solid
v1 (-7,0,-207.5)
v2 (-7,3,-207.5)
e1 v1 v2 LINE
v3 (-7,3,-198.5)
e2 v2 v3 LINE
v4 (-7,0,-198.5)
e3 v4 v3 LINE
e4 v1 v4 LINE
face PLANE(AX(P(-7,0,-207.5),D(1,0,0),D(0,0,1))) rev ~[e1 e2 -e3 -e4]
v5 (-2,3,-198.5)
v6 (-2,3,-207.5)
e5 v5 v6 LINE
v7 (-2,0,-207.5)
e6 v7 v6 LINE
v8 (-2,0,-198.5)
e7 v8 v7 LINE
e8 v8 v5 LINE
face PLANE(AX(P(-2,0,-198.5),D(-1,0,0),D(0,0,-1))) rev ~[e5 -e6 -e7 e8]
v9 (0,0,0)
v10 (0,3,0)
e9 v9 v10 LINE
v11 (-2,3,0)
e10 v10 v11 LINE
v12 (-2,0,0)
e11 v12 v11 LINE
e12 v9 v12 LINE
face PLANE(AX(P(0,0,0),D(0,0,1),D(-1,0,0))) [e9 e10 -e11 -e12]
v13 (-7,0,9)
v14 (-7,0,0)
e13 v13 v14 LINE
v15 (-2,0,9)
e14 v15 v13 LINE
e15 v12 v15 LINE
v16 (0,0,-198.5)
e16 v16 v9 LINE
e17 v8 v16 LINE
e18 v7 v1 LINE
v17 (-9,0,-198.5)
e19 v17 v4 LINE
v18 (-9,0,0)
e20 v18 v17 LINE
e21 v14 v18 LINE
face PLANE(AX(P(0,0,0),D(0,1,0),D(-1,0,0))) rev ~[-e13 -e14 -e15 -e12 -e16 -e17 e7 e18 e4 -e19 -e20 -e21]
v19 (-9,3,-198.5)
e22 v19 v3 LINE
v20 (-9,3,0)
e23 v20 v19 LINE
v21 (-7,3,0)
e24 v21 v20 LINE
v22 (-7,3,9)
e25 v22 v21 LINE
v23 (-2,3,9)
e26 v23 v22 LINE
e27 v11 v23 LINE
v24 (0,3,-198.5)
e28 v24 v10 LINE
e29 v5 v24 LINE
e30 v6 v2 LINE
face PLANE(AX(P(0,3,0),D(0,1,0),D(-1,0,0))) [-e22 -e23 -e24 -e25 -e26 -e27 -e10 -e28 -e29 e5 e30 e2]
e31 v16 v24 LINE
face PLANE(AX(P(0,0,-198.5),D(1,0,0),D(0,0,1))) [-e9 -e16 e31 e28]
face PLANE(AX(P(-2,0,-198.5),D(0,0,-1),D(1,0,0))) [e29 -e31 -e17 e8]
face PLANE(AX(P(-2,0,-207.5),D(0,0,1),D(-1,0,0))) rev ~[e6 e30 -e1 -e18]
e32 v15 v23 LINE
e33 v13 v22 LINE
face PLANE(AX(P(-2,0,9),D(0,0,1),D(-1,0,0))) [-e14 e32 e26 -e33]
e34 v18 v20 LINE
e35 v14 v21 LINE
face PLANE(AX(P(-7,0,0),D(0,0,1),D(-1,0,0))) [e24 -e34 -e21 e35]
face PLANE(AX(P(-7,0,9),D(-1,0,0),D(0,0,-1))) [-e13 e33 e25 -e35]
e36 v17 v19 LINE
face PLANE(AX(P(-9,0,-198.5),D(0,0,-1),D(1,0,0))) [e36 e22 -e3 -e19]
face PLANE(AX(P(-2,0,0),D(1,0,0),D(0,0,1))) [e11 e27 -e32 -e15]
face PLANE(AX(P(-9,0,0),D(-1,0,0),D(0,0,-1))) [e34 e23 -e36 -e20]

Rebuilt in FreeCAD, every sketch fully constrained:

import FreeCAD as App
import Part
import Sketcher
Q = App.Units.Quantity


def add_polygon(sketch, points):
    """Adds a closed chain of lines whose ends are joined by coincident constraints."""
    first, n = sketch.GeometryCount, len(points)
    for a, b in zip(points, points[1:] + points[:1]):
        sketch.addGeometry(Part.LineSegment(App.Vector(*a, 0), App.Vector(*b, 0)), False)
    for i in range(n):
        sketch.addConstraint(Sketcher.Constraint("Coincident", first + i, 2, first + (i + 1) % n, 1))

doc = App.newDocument("Part")
body = doc.addObject("PartDesign::Body", "Body")

sketch1 = doc.addObject("Sketcher::SketchObject", "Sketch")
body.addObject(sketch1)
sketch1.AttachmentSupport = (doc.XZ_Plane, [""])
sketch1.MapMode = "FlatFace"
add_polygon(sketch1, [(-2, 0), (0, 0), (0, -198.5), (-2, -198.5), (-2, -207.5), (-7, -207.5), (-7, -198.5), (-9, -198.5), (-9, 0), (-7, 0), (-7, 9), (-2, 9)])
sketch1.addConstraint([
    Sketcher.Constraint("Horizontal", 0),
    Sketcher.Constraint("Vertical", 1),
    Sketcher.Constraint("Horizontal", 2),
    Sketcher.Constraint("Vertical", 3),
    Sketcher.Constraint("Horizontal", 4),
    Sketcher.Constraint("Vertical", 5),
    Sketcher.Constraint("Horizontal", 6),
    Sketcher.Constraint("Vertical", 7),
    Sketcher.Constraint("Horizontal", 8),
    Sketcher.Constraint("Vertical", 9),
    Sketcher.Constraint("Horizontal", 10),
    Sketcher.Constraint("Vertical", 11),
    Sketcher.Constraint("Coincident", 0, 2, -1, 1),
    Sketcher.Constraint("PointOnObject", 7, 2, -1),
    Sketcher.Constraint("Horizontal", 2, 2, 5, 2),
    Sketcher.Constraint("Vertical", 5, 2, 8, 2),
    Sketcher.Constraint("Vertical", 3, 2, 10, 2),
    Sketcher.Constraint("Equal", 2, 6),
    Sketcher.Constraint("Equal", 5, 9),
    Sketcher.Constraint("DistanceX", 4, 2, 4, 1, Q("5 mm")),
    Sketcher.Constraint("DistanceY", 3, 2, 3, 1, Q("9 mm")),
    Sketcher.Constraint("DistanceY", 1, 2, 1, 1, Q("198.5 mm")),
    Sketcher.Constraint("DistanceX", 6, 2, -1, 1, Q("9 mm")),
])
pad1 = doc.addObject("PartDesign::Pad", "Pad")
body.addObject(pad1)
pad1.Profile = sketch1
pad1.Length = 3
pad1.Reversed = True

doc.recompute()
